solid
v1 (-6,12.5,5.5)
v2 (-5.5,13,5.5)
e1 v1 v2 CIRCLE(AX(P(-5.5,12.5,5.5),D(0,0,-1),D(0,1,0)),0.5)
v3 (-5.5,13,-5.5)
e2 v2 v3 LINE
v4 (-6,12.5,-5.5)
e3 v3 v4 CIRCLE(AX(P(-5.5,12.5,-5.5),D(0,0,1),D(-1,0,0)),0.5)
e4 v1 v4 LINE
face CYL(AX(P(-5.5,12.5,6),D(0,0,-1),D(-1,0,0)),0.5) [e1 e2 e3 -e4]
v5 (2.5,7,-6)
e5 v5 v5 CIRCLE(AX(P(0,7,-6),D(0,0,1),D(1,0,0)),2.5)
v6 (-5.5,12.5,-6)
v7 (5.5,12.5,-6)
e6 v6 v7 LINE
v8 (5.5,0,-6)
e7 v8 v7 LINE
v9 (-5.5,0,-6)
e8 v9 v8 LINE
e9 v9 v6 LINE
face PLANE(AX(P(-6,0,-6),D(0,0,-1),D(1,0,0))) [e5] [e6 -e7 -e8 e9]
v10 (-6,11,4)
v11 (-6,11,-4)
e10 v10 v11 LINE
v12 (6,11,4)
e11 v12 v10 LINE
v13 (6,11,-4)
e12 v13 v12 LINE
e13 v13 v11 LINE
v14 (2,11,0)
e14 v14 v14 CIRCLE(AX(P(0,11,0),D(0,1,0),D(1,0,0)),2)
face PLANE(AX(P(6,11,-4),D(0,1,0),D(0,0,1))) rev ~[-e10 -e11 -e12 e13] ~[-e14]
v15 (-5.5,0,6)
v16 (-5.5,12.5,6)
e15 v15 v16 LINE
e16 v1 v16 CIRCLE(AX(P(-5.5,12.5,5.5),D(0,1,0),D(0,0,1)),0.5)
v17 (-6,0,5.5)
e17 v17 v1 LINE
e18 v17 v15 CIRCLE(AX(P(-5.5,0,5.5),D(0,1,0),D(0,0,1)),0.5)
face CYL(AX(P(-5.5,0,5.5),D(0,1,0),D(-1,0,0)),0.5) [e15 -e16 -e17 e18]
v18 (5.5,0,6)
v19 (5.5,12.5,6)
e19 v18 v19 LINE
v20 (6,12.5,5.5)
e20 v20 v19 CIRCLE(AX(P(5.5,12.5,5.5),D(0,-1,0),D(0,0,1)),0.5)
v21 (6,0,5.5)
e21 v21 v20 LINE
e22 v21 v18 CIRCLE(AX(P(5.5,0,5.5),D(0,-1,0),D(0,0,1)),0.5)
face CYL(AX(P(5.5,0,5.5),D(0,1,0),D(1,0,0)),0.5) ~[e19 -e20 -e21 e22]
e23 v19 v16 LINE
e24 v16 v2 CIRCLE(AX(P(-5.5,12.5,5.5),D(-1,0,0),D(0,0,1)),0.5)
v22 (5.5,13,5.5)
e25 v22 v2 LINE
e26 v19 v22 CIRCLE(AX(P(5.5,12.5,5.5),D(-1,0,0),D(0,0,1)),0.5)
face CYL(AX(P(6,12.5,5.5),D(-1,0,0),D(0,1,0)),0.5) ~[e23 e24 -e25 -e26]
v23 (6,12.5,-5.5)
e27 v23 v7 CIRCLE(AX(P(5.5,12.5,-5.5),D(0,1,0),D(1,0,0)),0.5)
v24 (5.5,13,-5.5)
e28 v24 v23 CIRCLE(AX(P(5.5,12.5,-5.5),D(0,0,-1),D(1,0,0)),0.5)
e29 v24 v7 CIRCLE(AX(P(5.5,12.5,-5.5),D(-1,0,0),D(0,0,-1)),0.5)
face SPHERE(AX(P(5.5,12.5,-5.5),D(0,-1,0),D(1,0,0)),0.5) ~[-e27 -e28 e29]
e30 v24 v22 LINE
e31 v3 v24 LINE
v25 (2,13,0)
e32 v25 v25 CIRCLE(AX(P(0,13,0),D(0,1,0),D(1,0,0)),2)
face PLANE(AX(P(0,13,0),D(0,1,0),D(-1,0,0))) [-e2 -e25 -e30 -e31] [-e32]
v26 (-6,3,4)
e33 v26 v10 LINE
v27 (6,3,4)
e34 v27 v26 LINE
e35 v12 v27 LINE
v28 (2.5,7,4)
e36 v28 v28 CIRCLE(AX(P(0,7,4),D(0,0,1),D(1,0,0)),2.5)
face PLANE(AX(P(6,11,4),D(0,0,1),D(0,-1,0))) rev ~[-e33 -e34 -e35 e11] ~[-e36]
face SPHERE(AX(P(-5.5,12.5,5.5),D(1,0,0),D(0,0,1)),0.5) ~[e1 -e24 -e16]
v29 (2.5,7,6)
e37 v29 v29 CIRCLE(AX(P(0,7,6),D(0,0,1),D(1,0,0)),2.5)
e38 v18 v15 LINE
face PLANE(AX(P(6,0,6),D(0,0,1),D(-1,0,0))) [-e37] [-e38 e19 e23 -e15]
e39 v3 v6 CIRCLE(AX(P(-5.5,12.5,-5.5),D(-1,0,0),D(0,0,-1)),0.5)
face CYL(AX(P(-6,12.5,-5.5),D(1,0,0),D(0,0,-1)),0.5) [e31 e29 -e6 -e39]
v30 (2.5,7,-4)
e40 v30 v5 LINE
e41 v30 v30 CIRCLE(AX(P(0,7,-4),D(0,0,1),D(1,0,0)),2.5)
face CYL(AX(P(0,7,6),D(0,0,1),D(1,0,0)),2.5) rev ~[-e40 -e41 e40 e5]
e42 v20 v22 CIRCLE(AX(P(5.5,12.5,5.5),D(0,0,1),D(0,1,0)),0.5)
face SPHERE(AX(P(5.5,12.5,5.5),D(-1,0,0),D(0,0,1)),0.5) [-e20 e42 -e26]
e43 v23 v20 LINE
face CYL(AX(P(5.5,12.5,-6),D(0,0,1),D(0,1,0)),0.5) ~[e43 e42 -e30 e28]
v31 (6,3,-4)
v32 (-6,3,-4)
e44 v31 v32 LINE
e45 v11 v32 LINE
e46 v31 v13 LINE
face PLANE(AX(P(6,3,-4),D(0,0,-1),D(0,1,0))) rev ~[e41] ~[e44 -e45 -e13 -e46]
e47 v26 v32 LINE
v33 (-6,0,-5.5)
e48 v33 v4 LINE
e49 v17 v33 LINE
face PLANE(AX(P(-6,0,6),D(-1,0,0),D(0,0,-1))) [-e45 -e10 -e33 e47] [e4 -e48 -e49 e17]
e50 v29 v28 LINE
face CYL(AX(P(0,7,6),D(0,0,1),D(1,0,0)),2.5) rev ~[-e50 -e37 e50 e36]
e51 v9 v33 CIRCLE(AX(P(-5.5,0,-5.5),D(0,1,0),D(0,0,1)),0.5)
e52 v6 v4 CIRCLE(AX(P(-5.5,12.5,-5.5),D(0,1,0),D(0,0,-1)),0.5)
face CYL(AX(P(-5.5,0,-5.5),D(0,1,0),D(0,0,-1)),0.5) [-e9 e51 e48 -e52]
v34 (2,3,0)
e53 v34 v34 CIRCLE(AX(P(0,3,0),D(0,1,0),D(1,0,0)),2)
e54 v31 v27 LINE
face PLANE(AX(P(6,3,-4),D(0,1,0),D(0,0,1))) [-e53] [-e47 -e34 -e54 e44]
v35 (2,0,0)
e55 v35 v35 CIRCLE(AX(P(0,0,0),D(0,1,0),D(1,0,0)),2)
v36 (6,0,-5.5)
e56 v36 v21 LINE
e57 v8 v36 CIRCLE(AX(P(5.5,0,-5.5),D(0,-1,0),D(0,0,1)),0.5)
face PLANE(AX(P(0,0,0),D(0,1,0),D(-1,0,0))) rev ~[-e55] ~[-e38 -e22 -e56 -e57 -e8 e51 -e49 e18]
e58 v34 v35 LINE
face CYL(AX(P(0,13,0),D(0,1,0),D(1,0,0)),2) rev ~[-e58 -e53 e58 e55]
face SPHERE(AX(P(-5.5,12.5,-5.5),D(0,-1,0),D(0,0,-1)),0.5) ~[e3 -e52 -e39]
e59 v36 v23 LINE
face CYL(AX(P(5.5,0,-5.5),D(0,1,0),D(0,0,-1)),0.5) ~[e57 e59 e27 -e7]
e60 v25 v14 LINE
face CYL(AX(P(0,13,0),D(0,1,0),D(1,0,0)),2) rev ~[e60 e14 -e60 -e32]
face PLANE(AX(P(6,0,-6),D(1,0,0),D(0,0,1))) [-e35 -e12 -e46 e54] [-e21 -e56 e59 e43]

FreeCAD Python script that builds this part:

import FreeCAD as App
import Part
import Sketcher
from FreeCAD import Vector
Q = App.Units.Quantity


def edges_at(feature, points):
    """Names of the edges that pass closest to the given points."""
    edges = feature.Shape.Edges
    near = lambda p: min(range(len(edges)), key=lambda i: edges[i].distToShape(Part.Vertex(*p))[0])
    return sorted({f"Edge{near(p) + 1}" for p in points})


def add_polygon(sketch, points):
    """Adds a closed chain of lines whose ends are joined by coincident constraints."""
    first, n = sketch.GeometryCount, len(points)
    for a, b in zip(points, points[1:] + points[:1]):
        sketch.addGeometry(Part.LineSegment(App.Vector(*a, 0), App.Vector(*b, 0)), False)
    for i in range(n):
        sketch.addConstraint(Sketcher.Constraint("Coincident", first + i, 2, first + (i + 1) % n, 1))

doc = App.newDocument("Part")
body = doc.addObject("PartDesign::Body", "Body")

sketch1 = body.newObject("Sketcher::SketchObject", "Sketch")
sketch1.AttachmentSupport = (doc.getObject("XZ_Plane"), [""])
sketch1.MapMode = "FlatFace"
add_polygon(sketch1, [(6, -6), (-6, -6), (-6, 6), (6, 6)])
sketch1.addConstraint([
    Sketcher.Constraint("Horizontal", 0),
    Sketcher.Constraint("Vertical", 1),
    Sketcher.Constraint("Horizontal", 2),
    Sketcher.Constraint("Vertical", 3),
    Sketcher.Constraint("Symmetric", 0, 2, 2, 2, -1, 1),
    Sketcher.Constraint("Equal", 2, 1),
    Sketcher.Constraint("DistanceX", 0, 2, 0, 1, Q("12 mm")),
])
pad1 = body.newObject("PartDesign::Pad", "Pad")
pad1.Profile = sketch1
pad1.Length = 13
pad1.Reversed = True

sketch2 = body.newObject("Sketcher::SketchObject", "Sketch001")
sketch2.AttachmentSupport = (doc.getObject("YZ_Plane"), [""])
sketch2.MapMode = "FlatFace"
sketch2.AttachmentOffset = App.Placement(Vector(0, 0, 6), App.Rotation())
add_polygon(sketch2, [(3, -4), (11, -4), (11, 4), (3, 4)])
sketch2.addConstraint([
    Sketcher.Constraint("Horizontal", 0),
    Sketcher.Constraint("Vertical", 1),
    Sketcher.Constraint("Horizontal", 2),
    Sketcher.Constraint("Vertical", 3),
    Sketcher.Constraint("Equal", 2, 1),
    Sketcher.Constraint("DistanceX", 0, 1, 0, 2, Q("8 mm")),
    Sketcher.Constraint("DistanceX", -1, 1, 0, 2, Q("11 mm")),
    Sketcher.Constraint("DistanceY", 0, 2, -1, 1, Q("4 mm")),
])
pocket1 = body.newObject("PartDesign::Pocket", "Pocket")
pocket1.Profile = sketch2
pocket1.Length = 13

sketch3 = body.newObject("Sketcher::SketchObject", "Sketch002")
sketch3.AttachmentSupport = (doc.getObject("XY_Plane"), [""])
sketch3.MapMode = "FlatFace"
sketch3.AttachmentOffset = App.Placement(Vector(0, 0, 6), App.Rotation())
sketch3.addGeometry(Part.Circle(Vector(0, 7, 0), Vector(0, 0, 1), 2.5), False)
sketch3.addConstraint([
    Sketcher.Constraint("PointOnObject", 0, 3, -2),
    Sketcher.Constraint("Diameter", 0, Q("5 mm")),
    Sketcher.Constraint("DistanceY", -1, 1, 0, 3, Q("7 mm")),
])
pocket2 = body.newObject("PartDesign::Pocket", "Pocket001")
pocket2.Profile = sketch3
pocket2.Length = 13

sketch4 = body.newObject("Sketcher::SketchObject", "Sketch003")
sketch4.AttachmentSupport = (doc.getObject("XZ_Plane"), [""])
sketch4.MapMode = "FlatFace"
sketch4.AttachmentOffset = App.Placement(Vector(0, 0, -13), App.Rotation())
sketch4.addGeometry(Part.Circle(Vector(0, 0, 0), Vector(0, 0, 1), 2), False)
sketch4.addConstraint([
    Sketcher.Constraint("Coincident", 0, 3, -1, 1),
    Sketcher.Constraint("Diameter", 0, Q("4 mm")),
])
pocket3 = body.newObject("PartDesign::Pocket", "Pocket002")
pocket3.Profile = sketch4
pocket3.Length = 13
pocket3.Reversed = True
doc.recompute()

fillet = body.newObject("PartDesign::Fillet", "Fillet")
fillet.Base = (pocket3, edges_at(pocket3, [
    (0, 13, 6),
    (6, 6.5, 6),
    (-6, 6.5, 6),
    (-6, 6.5, -6),
    (6, 6.5, -6),
    (6, 13, 0),
    (0, 13, -6),
    (-6, 13, 0),
]))
fillet.Radius = 0.5

doc.recompute()
